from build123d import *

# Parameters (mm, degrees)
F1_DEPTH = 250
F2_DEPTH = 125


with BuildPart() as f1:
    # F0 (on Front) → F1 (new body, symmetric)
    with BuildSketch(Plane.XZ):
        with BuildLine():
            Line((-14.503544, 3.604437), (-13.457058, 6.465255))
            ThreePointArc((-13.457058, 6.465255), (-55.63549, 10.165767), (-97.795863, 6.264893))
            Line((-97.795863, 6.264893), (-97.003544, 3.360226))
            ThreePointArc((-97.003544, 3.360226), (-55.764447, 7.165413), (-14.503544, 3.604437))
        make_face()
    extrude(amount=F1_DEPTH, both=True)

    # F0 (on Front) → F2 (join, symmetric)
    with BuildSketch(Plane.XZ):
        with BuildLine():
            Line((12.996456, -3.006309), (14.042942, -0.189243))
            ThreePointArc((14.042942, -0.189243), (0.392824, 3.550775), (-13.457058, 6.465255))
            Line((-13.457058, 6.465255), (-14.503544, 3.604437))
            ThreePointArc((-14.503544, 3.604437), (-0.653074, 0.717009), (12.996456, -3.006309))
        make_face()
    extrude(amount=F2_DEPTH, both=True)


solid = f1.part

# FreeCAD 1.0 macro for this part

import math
import FreeCAD as App
import Part
import Sketcher
Q = App.Units.Quantity

doc = App.newDocument("Part")
body = doc.addObject("PartDesign::Body", "Body")

sketch1 = body.newObject("Sketcher::SketchObject", "Sketch")
sketch1.AttachmentSupport = (doc.getObject("XZ_Plane"), [""])
sketch1.MapMode = "FlatFace"
sketch1.addGeometry(Part.LineSegment(App.Vector(-14.5, 3.6, 0), App.Vector(-13.5, 6.5, 0)), False)
sketch1.addGeometry(Part.ArcOfCircle(Part.Circle(App.Vector(-55.1, -225.7, 0), App.Vector(0, 0, 1), 235.8), math.radians(80), math.radians(100)), False)
sketch1.addGeometry(Part.LineSegment(App.Vector(-97.8, 6.3, 0), App.Vector(-97, 3.4, 0)), False)
sketch1.addGeometry(Part.ArcOfCircle(Part.Circle(App.Vector(-55.1, -225.7, 0), App.Vector(0, 0, 1), 232.8), math.radians(80), math.radians(100)), False)
sketch1.addConstraint(Sketcher.Constraint("Coincident", 0, 2, 1, 1))
sketch1.addConstraint(Sketcher.Constraint("Coincident", 1, 2, 2, 1))
sketch1.addConstraint(Sketcher.Constraint("Coincident", 2, 2, 3, 2))
sketch1.addConstraint(Sketcher.Constraint("Coincident", 3, 1, 0, 1))
sketch1.addConstraint(Sketcher.Constraint("Vertical", 1, 3, 3, 3))
sketch1.addConstraint(Sketcher.Constraint("DistanceX", 2, 2, 3, 1, Q("82.5 mm")))
sketch1.addConstraint(Sketcher.Constraint("Radius", 1, Q("235.839731 mm")))
sketch1.addConstraint(Sketcher.Constraint("Radius", 3, Q("232.839689 mm")))
sketch1.addConstraint(Sketcher.Constraint("DistanceY", 1, 3, -1, 1, Q("225.673299 mm")))
sketch1.addConstraint(Sketcher.Constraint("Distance", 2, Q("3.010791 mm")))
sketch1.addConstraint(Sketcher.Constraint("DistanceX", 1, 3, -1, 1, Q("55.075212 mm")))
sketch1.addConstraint(Sketcher.Constraint("DistanceY", 3, 3, 0, 2, Q("232.138511 mm")))
sketch1.addConstraint(Sketcher.Constraint("DistanceX", 1, 2, 3, 3, Q("42.72065 mm")))
sketch1.addConstraint(Sketcher.Constraint("DistanceX", 1, 2, 2, 2, Q("0.792319 mm")))
pad1 = body.newObject("PartDesign::Pad", "Pad")
pad1.Profile = sketch1
pad1.Length = 500
pad1.Midplane = True

sketch2 = body.newObject("Sketcher::SketchObject", "Sketch001")
sketch2.AttachmentSupport = (doc.getObject("XZ_Plane"), [""])
sketch2.MapMode = "FlatFace"
sketch2.addGeometry(Part.LineSegment(App.Vector(13, -3, 0), App.Vector(14, -0.2, 0)), False)
sketch2.addGeometry(Part.ArcOfCircle(Part.Circle(App.Vector(-55.1, -225.7, 0), App.Vector(0, 0, 1), 235.8), math.radians(72.96), math.radians(79.84)), False)
sketch2.addGeometry(Part.LineSegment(App.Vector(-13.5, 6.5, 0), App.Vector(-14.5, 3.6, 0)), False)
sketch2.addGeometry(Part.ArcOfCircle(Part.Circle(App.Vector(-55.1, -225.7, 0), App.Vector(0, 0, 1), 232.8), math.radians(73), math.radians(79.97)), False)
sketch2.addConstraint(Sketcher.Constraint("Coincident", 0, 2, 1, 1))
sketch2.addConstraint(Sketcher.Constraint("Coincident", 1, 2, 2, 1))
sketch2.addConstraint(Sketcher.Constraint("Coincident", 2, 2, 3, 2))
sketch2.addConstraint(Sketcher.Constraint("Coincident", 3, 1, 0, 1))
sketch2.addConstraint(Sketcher.Constraint("DistanceX", 1, 2, 0, 2, Q("27.5 mm")))
sketch2.addConstraint(Sketcher.Constraint("DistanceX", 2, 2, 3, 1, Q("27.5 mm")))
sketch2.addConstraint(Sketcher.Constraint("Radius", 3, Q("232.83948 mm")))
sketch2.addConstraint(Sketcher.Constraint("DistanceY", 1, 3, -1, 1, Q("225.673001 mm")))
sketch2.addConstraint(Sketcher.Constraint("Radius", 1, Q("235.839426 mm")))
sketch2.addConstraint(Sketcher.Constraint("DistanceY", 0, 2, 1, 2, Q("6.654498 mm")))
sketch2.addConstraint(Sketcher.Constraint("DistanceX", 1, 3, 2, 2, Q("40.571601 mm")))
sketch2.addConstraint(Sketcher.Constraint("Distance", 0, Q("3.005161 mm")))
sketch2.addConstraint(Sketcher.Constraint("DistanceY", 3, 3, 0, 2, Q("225.483811 mm")))
sketch2.addConstraint(Sketcher.Constraint("DistanceX", 1, 3, -1, 1, Q("55.075145 mm")))
pad2 = body.newObject("PartDesign::Pad", "Pad001")
pad2.Profile = sketch2
pad2.Length = 250
pad2.Midplane = True

doc.recompute()
